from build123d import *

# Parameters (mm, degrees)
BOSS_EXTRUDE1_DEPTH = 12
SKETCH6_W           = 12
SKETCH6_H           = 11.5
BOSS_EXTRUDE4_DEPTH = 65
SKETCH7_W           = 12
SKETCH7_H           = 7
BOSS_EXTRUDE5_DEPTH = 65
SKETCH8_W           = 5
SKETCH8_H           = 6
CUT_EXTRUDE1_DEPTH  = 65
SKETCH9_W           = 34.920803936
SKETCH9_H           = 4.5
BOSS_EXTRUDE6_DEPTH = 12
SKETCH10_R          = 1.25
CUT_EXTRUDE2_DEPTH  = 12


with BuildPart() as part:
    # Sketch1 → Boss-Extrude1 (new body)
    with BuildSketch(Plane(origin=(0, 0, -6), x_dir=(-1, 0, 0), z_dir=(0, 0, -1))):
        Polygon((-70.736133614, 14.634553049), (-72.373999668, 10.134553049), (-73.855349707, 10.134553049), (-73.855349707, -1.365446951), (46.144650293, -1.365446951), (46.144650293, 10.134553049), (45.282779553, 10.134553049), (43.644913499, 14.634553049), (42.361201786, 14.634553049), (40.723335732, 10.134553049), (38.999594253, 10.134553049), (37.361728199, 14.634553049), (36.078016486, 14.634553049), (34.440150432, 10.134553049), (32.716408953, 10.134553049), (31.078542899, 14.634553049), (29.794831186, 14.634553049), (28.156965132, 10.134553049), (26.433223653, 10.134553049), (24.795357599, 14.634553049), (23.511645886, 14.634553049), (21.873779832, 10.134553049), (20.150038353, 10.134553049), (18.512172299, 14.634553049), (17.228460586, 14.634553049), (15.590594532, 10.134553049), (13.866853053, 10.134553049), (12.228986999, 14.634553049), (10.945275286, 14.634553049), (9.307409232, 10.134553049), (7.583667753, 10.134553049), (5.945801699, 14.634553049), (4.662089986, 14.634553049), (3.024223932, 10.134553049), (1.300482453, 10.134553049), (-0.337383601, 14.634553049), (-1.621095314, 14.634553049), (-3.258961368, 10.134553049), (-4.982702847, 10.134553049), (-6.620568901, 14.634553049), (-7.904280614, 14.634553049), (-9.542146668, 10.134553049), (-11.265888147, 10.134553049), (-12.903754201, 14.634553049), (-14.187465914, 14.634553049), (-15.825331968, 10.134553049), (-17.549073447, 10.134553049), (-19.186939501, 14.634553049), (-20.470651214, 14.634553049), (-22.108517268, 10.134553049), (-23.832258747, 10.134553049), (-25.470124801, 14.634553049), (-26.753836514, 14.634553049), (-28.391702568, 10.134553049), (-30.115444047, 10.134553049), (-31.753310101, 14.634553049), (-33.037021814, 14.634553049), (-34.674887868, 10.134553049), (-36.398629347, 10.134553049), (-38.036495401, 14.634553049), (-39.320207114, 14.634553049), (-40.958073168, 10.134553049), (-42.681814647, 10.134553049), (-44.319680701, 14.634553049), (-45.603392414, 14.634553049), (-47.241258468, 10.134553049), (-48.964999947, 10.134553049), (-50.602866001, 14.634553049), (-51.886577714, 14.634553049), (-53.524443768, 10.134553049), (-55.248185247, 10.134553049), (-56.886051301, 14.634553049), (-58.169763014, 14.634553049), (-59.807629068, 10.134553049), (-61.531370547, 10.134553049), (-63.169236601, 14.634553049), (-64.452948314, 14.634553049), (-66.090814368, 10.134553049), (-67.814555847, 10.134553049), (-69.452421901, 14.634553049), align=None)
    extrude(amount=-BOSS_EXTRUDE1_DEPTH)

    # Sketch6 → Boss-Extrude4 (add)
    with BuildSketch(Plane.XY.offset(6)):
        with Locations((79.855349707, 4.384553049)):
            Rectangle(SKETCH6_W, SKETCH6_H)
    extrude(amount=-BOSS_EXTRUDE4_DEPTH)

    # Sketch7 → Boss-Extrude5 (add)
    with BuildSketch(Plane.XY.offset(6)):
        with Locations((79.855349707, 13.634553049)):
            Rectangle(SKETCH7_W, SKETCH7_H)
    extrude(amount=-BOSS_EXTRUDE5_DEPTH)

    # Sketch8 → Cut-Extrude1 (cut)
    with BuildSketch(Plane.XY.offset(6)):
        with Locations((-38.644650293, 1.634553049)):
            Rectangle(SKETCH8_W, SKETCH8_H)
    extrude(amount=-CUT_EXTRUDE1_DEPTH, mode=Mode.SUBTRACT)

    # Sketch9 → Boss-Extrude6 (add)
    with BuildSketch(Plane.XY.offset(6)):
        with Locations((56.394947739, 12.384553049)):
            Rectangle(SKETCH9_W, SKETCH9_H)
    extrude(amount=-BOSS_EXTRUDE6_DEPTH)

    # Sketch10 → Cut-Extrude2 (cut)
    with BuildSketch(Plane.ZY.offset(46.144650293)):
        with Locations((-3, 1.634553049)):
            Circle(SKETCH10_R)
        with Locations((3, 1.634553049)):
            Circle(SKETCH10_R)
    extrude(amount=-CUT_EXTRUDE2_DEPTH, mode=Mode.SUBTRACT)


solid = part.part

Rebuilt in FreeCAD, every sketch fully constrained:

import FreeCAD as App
import Part
import Sketcher
Q = App.Units.Quantity


def add_polygon(sketch, points):
    """Adds a closed chain of lines whose ends are joined by coincident constraints."""
    first, n = sketch.GeometryCount, len(points)
    for a, b in zip(points, points[1:] + points[:1]):
        sketch.addGeometry(Part.LineSegment(App.Vector(*a, 0), App.Vector(*b, 0)), False)
    for i in range(n):
        sketch.addConstraint(Sketcher.Constraint("Coincident", first + i, 2, first + (i + 1) % n, 1))

doc = App.newDocument("Part")
body = doc.addObject("PartDesign::Body", "Body")

sketch1 = doc.addObject("Sketcher::SketchObject", "Sketch")
body.addObject(sketch1)
sketch1.AttachmentSupport = (doc.XY_Plane, [""])
sketch1.MapMode = "FlatFace"
sketch1.AttachmentOffset = App.Placement(App.Vector(0, 0, -6), App.Rotation())
add_polygon(sketch1, [(70.7, 14.6), (72.4, 10.1), (73.9, 10.1), (73.9, -1.4), (-46.1, -1.4), (-46.1, 10.1), (-45.3, 10.1), (-43.6, 14.6), (-42.4, 14.6), (-40.7, 10.1), (-39, 10.1), (-37.4, 14.6), (-36.1, 14.6), (-34.4, 10.1), (-32.7, 10.1), (-31.1, 14.6), (-29.8, 14.6), (-28.2, 10.1), (-26.4, 10.1), (-24.8, 14.6), (-23.5, 14.6), (-21.9, 10.1), (-20.2, 10.1), (-18.5, 14.6), (-17.2, 14.6), (-15.6, 10.1), (-13.9, 10.1), (-12.2, 14.6), (-10.9, 14.6), (-9.3, 10.1), (-7.6, 10.1), (-5.9, 14.6), (-4.7, 14.6), (-3, 10.1), (-1.3, 10.1), (0.3, 14.6), (1.6, 14.6), (3.3, 10.1), (5, 10.1), (6.6, 14.6), (7.9, 14.6), (9.5, 10.1), (11.3, 10.1), (12.9, 14.6), (14.2, 14.6), (15.8, 10.1), (17.5, 10.1), (19.2, 14.6), (20.5, 14.6), (22.1, 10.1), (23.8, 10.1), (25.5, 14.6), (26.8, 14.6), (28.4, 10.1), (30.1, 10.1), (31.8, 14.6), (33, 14.6), (34.7, 10.1), (36.4, 10.1), (38, 14.6), (39.3, 14.6), (41, 10.1), (42.7, 10.1), (44.3, 14.6), (45.6, 14.6), (47.2, 10.1), (49, 10.1), (50.6, 14.6), (51.9, 14.6), (53.5, 10.1), (55.2, 10.1), (56.9, 14.6), (58.2, 14.6), (59.8, 10.1), (61.5, 10.1), (63.2, 14.6), (64.5, 14.6), (66.1, 10.1), (67.8, 10.1), (69.5, 14.6)])
sketch1.addConstraint(Sketcher.Constraint("Horizontal", 1))
sketch1.addConstraint(Sketcher.Constraint("Vertical", 2))
sketch1.addConstraint(Sketcher.Constraint("Horizontal", 3))
sketch1.addConstraint(Sketcher.Constraint("Vertical", 4))
sketch1.addConstraint(Sketcher.Constraint("Horizontal", 5))
sketch1.addConstraint(Sketcher.Constraint("Horizontal", 7))
sketch1.addConstraint(Sketcher.Constraint("Horizontal", 9))
sketch1.addConstraint(Sketcher.Constraint("Horizontal", 11))
sketch1.addConstraint(Sketcher.Constraint("Horizontal", 13))
sketch1.addConstraint(Sketcher.Constraint("Horizontal", 15))
sketch1.addConstraint(Sketcher.Constraint("Horizontal", 17))
sketch1.addConstraint(Sketcher.Constraint("Horizontal", 19))
sketch1.addConstraint(Sketcher.Constraint("Horizontal", 21))
sketch1.addConstraint(Sketcher.Constraint("Horizontal", 23))
sketch1.addConstraint(Sketcher.Constraint("Horizontal", 25))
sketch1.addConstraint(Sketcher.Constraint("Horizontal", 27))
sketch1.addConstraint(Sketcher.Constraint("Horizontal", 29))
sketch1.addConstraint(Sketcher.Constraint("Horizontal", 31))
sketch1.addConstraint(Sketcher.Constraint("Horizontal", 33))
sketch1.addConstraint(Sketcher.Constraint("Horizontal", 35))
sketch1.addConstraint(Sketcher.Constraint("Horizontal", 37))
sketch1.addConstraint(Sketcher.Constraint("Horizontal", 39))
sketch1.addConstraint(Sketcher.Constraint("Horizontal", 41))
sketch1.addConstraint(Sketcher.Constraint("Horizontal", 43))
sketch1.addConstraint(Sketcher.Constraint("Horizontal", 45))
sketch1.addConstraint(Sketcher.Constraint("Horizontal", 47))
sketch1.addConstraint(Sketcher.Constraint("Horizontal", 49))
sketch1.addConstraint(Sketcher.Constraint("Horizontal", 51))
sketch1.addConstraint(Sketcher.Constraint("Horizontal", 53))
sketch1.addConstraint(Sketcher.Constraint("Horizontal", 55))
sketch1.addConstraint(Sketcher.Constraint("Horizontal", 57))
sketch1.addConstraint(Sketcher.Constraint("Horizontal", 59))
sketch1.addConstraint(Sketcher.Constraint("Horizontal", 61))
sketch1.addConstraint(Sketcher.Constraint("Horizontal", 63))
sketch1.addConstraint(Sketcher.Constraint("Horizontal", 65))
sketch1.addConstraint(Sketcher.Constraint("Horizontal", 67))
sketch1.addConstraint(Sketcher.Constraint("Horizontal", 69))
sketch1.addConstraint(Sketcher.Constraint("Horizontal", 71))
sketch1.addConstraint(Sketcher.Constraint("Horizontal", 73))
sketch1.addConstraint(Sketcher.Constraint("Horizontal", 75))
sketch1.addConstraint(Sketcher.Constraint("Horizontal", 77))
sketch1.addConstraint(Sketcher.Constraint("Horizontal", 79))
sketch1.addConstraint(Sketcher.Constraint("Parallel", 0, 8))
sketch1.addConstraint(Sketcher.Constraint("Parallel", 6, 10))
sketch1.addConstraint(Sketcher.Constraint("Parallel", 8, 12))
sketch1.addConstraint(Sketcher.Constraint("Parallel", 10, 14))
sketch1.addConstraint(Sketcher.Constraint("Parallel", 12, 16))
sketch1.addConstraint(Sketcher.Constraint("Parallel", 14, 18))
sketch1.addConstraint(Sketcher.Constraint("Parallel", 16, 20))
sketch1.addConstraint(Sketcher.Constraint("Parallel", 18, 22))
sketch1.addConstraint(Sketcher.Constraint("Parallel", 20, 24))
sketch1.addConstraint(Sketcher.Constraint("Parallel", 22, 26))
sketch1.addConstraint(Sketcher.Constraint("Parallel", 24, 28))
sketch1.addConstraint(Sketcher.Constraint("Parallel", 26, 30))
sketch1.addConstraint(Sketcher.Constraint("Parallel", 28, 32))
sketch1.addConstraint(Sketcher.Constraint("Parallel", 30, 34))
sketch1.addConstraint(Sketcher.Constraint("Parallel", 32, 36))
sketch1.addConstraint(Sketcher.Constraint("Parallel", 34, 38))
sketch1.addConstraint(Sketcher.Constraint("Parallel", 36, 40))
sketch1.addConstraint(Sketcher.Constraint("Parallel", 38, 42))
sketch1.addConstraint(Sketcher.Constraint("Parallel", 40, 44))
sketch1.addConstraint(Sketcher.Constraint("Parallel", 42, 46))
sketch1.addConstraint(Sketcher.Constraint("Parallel", 44, 48))
sketch1.addConstraint(Sketcher.Constraint("Parallel", 46, 50))
sketch1.addConstraint(Sketcher.Constraint("Parallel", 48, 52))
sketch1.addConstraint(Sketcher.Constraint("Parallel", 50, 54))
sketch1.addConstraint(Sketcher.Constraint("Parallel", 52, 56))
sketch1.addConstraint(Sketcher.Constraint("Parallel", 54, 58))
sketch1.addConstraint(Sketcher.Constraint("Parallel", 56, 60))
sketch1.addConstraint(Sketcher.Constraint("Parallel", 58, 62))
sketch1.addConstraint(Sketcher.Constraint("Parallel", 60, 64))
sketch1.addConstraint(Sketcher.Constraint("Parallel", 62, 66))
sketch1.addConstraint(Sketcher.Constraint("Parallel", 64, 68))
sketch1.addConstraint(Sketcher.Constraint("Parallel", 66, 70))
sketch1.addConstraint(Sketcher.Constraint("Parallel", 68, 72))
sketch1.addConstraint(Sketcher.Constraint("Parallel", 70, 74))
sketch1.addConstraint(Sketcher.Constraint("Parallel", 72, 76))
sketch1.addConstraint(Sketcher.Constraint("Parallel", 74, 78))
sketch1.addConstraint(Sketcher.Constraint("Horizontal", 1, 2, 4, 2))
sketch1.addConstraint(Sketcher.Constraint("Horizontal", 5, 2, 8, 2))
sketch1.addConstraint(Sketcher.Constraint("Horizontal", 7, 2, 10, 2))
sketch1.addConstraint(Sketcher.Constraint("Horizontal", 9, 2, 12, 2))
sketch1.addConstraint(Sketcher.Constraint("Horizontal", 11, 2, 14, 2))
sketch1.addConstraint(Sketcher.Constraint("Horizontal", 13, 2, 16, 2))
sketch1.addConstraint(Sketcher.Constraint("Horizontal", 15, 2, 18, 2))
sketch1.addConstraint(Sketcher.Constraint("Horizontal", 17, 2, 20, 2))
sketch1.addConstraint(Sketcher.Constraint("Horizontal", 19, 2, 22, 2))
sketch1.addConstraint(Sketcher.Constraint("Horizontal", 21, 2, 24, 2))
sketch1.addConstraint(Sketcher.Constraint("Horizontal", 23, 2, 26, 2))
sketch1.addConstraint(Sketcher.Constraint("Horizontal", 25, 2, 28, 2))
sketch1.addConstraint(Sketcher.Constraint("Horizontal", 27, 2, 30, 2))
sketch1.addConstraint(Sketcher.Constraint("Horizontal", 29, 2, 32, 2))
sketch1.addConstraint(Sketcher.Constraint("Horizontal", 31, 2, 34, 2))
sketch1.addConstraint(Sketcher.Constraint("Horizontal", 33, 2, 36, 2))
sketch1.addConstraint(Sketcher.Constraint("Horizontal", 35, 2, 38, 2))
sketch1.addConstraint(Sketcher.Constraint("Horizontal", 37, 2, 40, 2))
sketch1.addConstraint(Sketcher.Constraint("Horizontal", 39, 2, 42, 2))
sketch1.addConstraint(Sketcher.Constraint("Horizontal", 41, 2, 44, 2))
sketch1.addConstraint(Sketcher.Constraint("Horizontal", 43, 2, 46, 2))
sketch1.addConstraint(Sketcher.Constraint("Horizontal", 45, 2, 48, 2))
sketch1.addConstraint(Sketcher.Constraint("Horizontal", 47, 2, 50, 2))
sketch1.addConstraint(Sketcher.Constraint("Horizontal", 49, 2, 52, 2))
sketch1.addConstraint(Sketcher.Constraint("Horizontal", 51, 2, 54, 2))
sketch1.addConstraint(Sketcher.Constraint("Horizontal", 53, 2, 56, 2))
sketch1.addConstraint(Sketcher.Constraint("Horizontal", 55, 2, 58, 2))
sketch1.addConstraint(Sketcher.Constraint("Horizontal", 57, 2, 60, 2))
sketch1.addConstraint(Sketcher.Constraint("Horizontal", 59, 2, 62, 2))
sketch1.addConstraint(Sketcher.Constraint("Horizontal", 61, 2, 64, 2))
sketch1.addConstraint(Sketcher.Constraint("Horizontal", 63, 2, 66, 2))
sketch1.addConstraint(Sketcher.Constraint("Horizontal", 65, 2, 68, 2))
sketch1.addConstraint(Sketcher.Constraint("Horizontal", 67, 2, 70, 2))
sketch1.addConstraint(Sketcher.Constraint("Horizontal", 69, 2, 72, 2))
sketch1.addConstraint(Sketcher.Constraint("Horizontal", 71, 2, 74, 2))
sketch1.addConstraint(Sketcher.Constraint("Horizontal", 73, 2, 76, 2))
sketch1.addConstraint(Sketcher.Constraint("Horizontal", 75, 2, 78, 2))
sketch1.addConstraint(Sketcher.Constraint("Equal", 7, 11))
sketch1.addConstraint(Sketcher.Constraint("Equal", 9, 13))
sketch1.addConstraint(Sketcher.Constraint("Equal", 11, 15))
sketch1.addConstraint(Sketcher.Constraint("Equal", 13, 17))
sketch1.addConstraint(Sketcher.Constraint("Equal", 15, 19))
sketch1.addConstraint(Sketcher.Constraint("Equal", 17, 21))
sketch1.addConstraint(Sketcher.Constraint("Equal", 19, 23))
sketch1.addConstraint(Sketcher.Constraint("Equal", 21, 25))
sketch1.addConstraint(Sketcher.Constraint("Equal", 23, 27))
sketch1.addConstraint(Sketcher.Constraint("Equal", 25, 29))
sketch1.addConstraint(Sketcher.Constraint("Equal", 27, 31))
sketch1.addConstraint(Sketcher.Constraint("Equal", 29, 33))
sketch1.addConstraint(Sketcher.Constraint("Equal", 31, 35))
sketch1.addConstraint(Sketcher.Constraint("Equal", 33, 37))
sketch1.addConstraint(Sketcher.Constraint("Equal", 35, 39))
sketch1.addConstraint(Sketcher.Constraint("Equal", 37, 41))
sketch1.addConstraint(Sketcher.Constraint("Equal", 39, 43))
sketch1.addConstraint(Sketcher.Constraint("Equal", 41, 45))
sketch1.addConstraint(Sketcher.Constraint("Equal", 43, 47))
sketch1.addConstraint(Sketcher.Constraint("Equal", 45, 49))
sketch1.addConstraint(Sketcher.Constraint("Equal", 47, 51))
sketch1.addConstraint(Sketcher.Constraint("Equal", 49, 53))
sketch1.addConstraint(Sketcher.Constraint("Equal", 51, 55))
sketch1.addConstraint(Sketcher.Constraint("Equal", 53, 57))
sketch1.addConstraint(Sketcher.Constraint("Equal", 55, 59))
sketch1.addConstraint(Sketcher.Constraint("Equal", 57, 61))
sketch1.addConstraint(Sketcher.Constraint("Equal", 59, 63))
sketch1.addConstraint(Sketcher.Constraint("Equal", 61, 65))
sketch1.addConstraint(Sketcher.Constraint("Equal", 63, 67))
sketch1.addConstraint(Sketcher.Constraint("Equal", 65, 69))
sketch1.addConstraint(Sketcher.Constraint("Equal", 67, 71))
sketch1.addConstraint(Sketcher.Constraint("Equal", 69, 73))
sketch1.addConstraint(Sketcher.Constraint("Equal", 71, 75))
sketch1.addConstraint(Sketcher.Constraint("Equal", 73, 77))
sketch1.addConstraint(Sketcher.Constraint("Equal", 75, 79))
sketch1.addConstraint(Sketcher.Constraint("Equal", 0, 6))
sketch1.addConstraint(Sketcher.Constraint("DistanceX", 3, 2, 3, 1, Q("120 mm")))
sketch1.addConstraint(Sketcher.Constraint("Angle", 0, Q("-70 deg")))
sketch1.addConstraint(Sketcher.Constraint("DistanceY", 2, 2, 2, 1, Q("11.5 mm")))
sketch1.addConstraint(Sketcher.Constraint("DistanceX", -1, 1, 0, 2, Q("72.374 mm")))
sketch1.addConstraint(Sketcher.Constraint("DistanceX", -1, 1, 65, 2, Q("48.965 mm")))
sketch1.addConstraint(Sketcher.Constraint("Distance", 0, Q("4.7888 mm")))
sketch1.addConstraint(Sketcher.Constraint("DistanceX", 1, 1, 1, 2, Q("1.48135 mm")))
sketch1.addConstraint(Sketcher.Constraint("DistanceX", 5, 1, 5, 2, Q("0.861871 mm")))
sketch1.addConstraint(Sketcher.Constraint("DistanceY", -1, 1, 0, 2, Q("10.134553 mm")))
pad1 = doc.addObject("PartDesign::Pad", "Pad")
body.addObject(pad1)
pad1.Profile = sketch1
pad1.Length = 12

sketch2 = doc.addObject("Sketcher::SketchObject", "Sketch001")
body.addObject(sketch2)
sketch2.AttachmentSupport = (doc.XY_Plane, [""])
sketch2.MapMode = "FlatFace"
sketch2.AttachmentOffset = App.Placement(App.Vector(0, 0, 6), App.Rotation())
add_polygon(sketch2, [(74, 10), (74, -1), (86, -1), (86, 10)])
sketch2.addConstraint(Sketcher.Constraint("Vertical", 0))
sketch2.addConstraint(Sketcher.Constraint("Horizontal", 1))
sketch2.addConstraint(Sketcher.Constraint("Vertical", 2))
sketch2.addConstraint(Sketcher.Constraint("Horizontal", 3))
sketch2.addConstraint(Sketcher.Constraint("DistanceX", 1, 1, 1, 2, Q("12 mm")))
sketch2.addConstraint(Sketcher.Constraint("DistanceY", 0, 2, 0, 1, Q("11.5 mm")))
sketch2.addConstraint(Sketcher.Constraint("DistanceX", -1, 1, 0, 2, Q("73.85535 mm")))
sketch2.addConstraint(Sketcher.Constraint("DistanceY", 0, 2, -1, 1, Q("1.365447 mm")))
pad2 = doc.addObject("PartDesign::Pad", "Pad001")
body.addObject(pad2)
pad2.Profile = sketch2
pad2.Length = 65
pad2.Reversed = True

sketch3 = doc.addObject("Sketcher::SketchObject", "Sketch002")
body.addObject(sketch3)
sketch3.AttachmentSupport = (doc.XY_Plane, [""])
sketch3.MapMode = "FlatFace"
sketch3.AttachmentOffset = App.Placement(App.Vector(0, 0, 6), App.Rotation())
add_polygon(sketch3, [(74, 17), (74, 10), (86, 10), (86, 17)])
sketch3.addConstraint(Sketcher.Constraint("Vertical", 0))
sketch3.addConstraint(Sketcher.Constraint("Horizontal", 1))
sketch3.addConstraint(Sketcher.Constraint("Vertical", 2))
sketch3.addConstraint(Sketcher.Constraint("Horizontal", 3))
sketch3.addConstraint(Sketcher.Constraint("DistanceX", 1, 1, 1, 2, Q("12 mm")))
sketch3.addConstraint(Sketcher.Constraint("DistanceY", 0, 2, 0, 1, Q("7 mm")))
sketch3.addConstraint(Sketcher.Constraint("DistanceX", -1, 1, 0, 2, Q("73.85535 mm")))
sketch3.addConstraint(Sketcher.Constraint("DistanceY", -1, 1, 0, 2, Q("10.134553 mm")))
pad3 = doc.addObject("PartDesign::Pad", "Pad002")
body.addObject(pad3)
pad3.Profile = sketch3
pad3.Length = 65
pad3.Reversed = True

sketch4 = doc.addObject("Sketcher::SketchObject", "Sketch003")
body.addObject(sketch4)
sketch4.AttachmentSupport = (doc.XY_Plane, [""])
sketch4.MapMode = "FlatFace"
sketch4.AttachmentOffset = App.Placement(App.Vector(0, 0, 6), App.Rotation())
add_polygon(sketch4, [(-41, 5), (-41, -1), (-36, -1), (-36, 5)])
sketch4.addConstraint(Sketcher.Constraint("Vertical", 0))
sketch4.addConstraint(Sketcher.Constraint("Horizontal", 1))
sketch4.addConstraint(Sketcher.Constraint("Vertical", 2))
sketch4.addConstraint(Sketcher.Constraint("Horizontal", 3))
sketch4.addConstraint(Sketcher.Constraint("DistanceX", 1, 1, 1, 2, Q("5 mm")))
sketch4.addConstraint(Sketcher.Constraint("DistanceY", 0, 2, 0, 1, Q("6 mm")))
sketch4.addConstraint(Sketcher.Constraint("DistanceX", 0, 2, -1, 1, Q("41.14465 mm")))
sketch4.addConstraint(Sketcher.Constraint("DistanceY", 0, 2, -1, 1, Q("1.365447 mm")))
pocket1 = doc.addObject("PartDesign::Pocket", "Pocket")
body.addObject(pocket1)
pocket1.Profile = sketch4
pocket1.Length = 65

sketch5 = doc.addObject("Sketcher::SketchObject", "Sketch004")
body.addObject(sketch5)
sketch5.AttachmentSupport = (doc.XY_Plane, [""])
sketch5.MapMode = "FlatFace"
sketch5.AttachmentOffset = App.Placement(App.Vector(0, 0, 6), App.Rotation())
add_polygon(sketch5, [(38.9, 14.6), (38.9, 10.1), (73.9, 10.1), (73.9, 14.6)])
sketch5.addConstraint(Sketcher.Constraint("Vertical", 0))
sketch5.addConstraint(Sketcher.Constraint("Horizontal", 1))
sketch5.addConstraint(Sketcher.Constraint("Vertical", 2))
sketch5.addConstraint(Sketcher.Constraint("Horizontal", 3))
sketch5.addConstraint(Sketcher.Constraint("DistanceY", 0, 2, 0, 1, Q("4.5 mm")))
sketch5.addConstraint(Sketcher.Constraint("DistanceX", 1, 1, 1, 2, Q("34.920804 mm")))
sketch5.addConstraint(Sketcher.Constraint("DistanceX", -1, 1, 1, 2, Q("73.85535 mm")))
sketch5.addConstraint(Sketcher.Constraint("DistanceY", -1, 1, 0, 2, Q("10.134553 mm")))
pad4 = doc.addObject("PartDesign::Pad", "Pad003")
body.addObject(pad4)
pad4.Profile = sketch5
pad4.Length = 12
pad4.Reversed = True

sketch6 = doc.addObject("Sketcher::SketchObject", "Sketch005")
body.addObject(sketch6)
sketch6.AttachmentSupport = (doc.YZ_Plane, [""])
sketch6.MapMode = "FlatFace"
sketch6.AttachmentOffset = App.Placement(App.Vector(0, 0, -46.14465), App.Rotation())
sketch6.addGeometry(Part.Circle(App.Vector(1.6, -3, 0), App.Vector(0, 0, 1), 1.2), False)
sketch6.addGeometry(Part.Circle(App.Vector(1.6, 3, 0), App.Vector(0, 0, 1), 1.2), False)
sketch6.addConstraint(Sketcher.Constraint("Equal", 0, 1))
sketch6.addConstraint(Sketcher.Constraint("Symmetric", 0, 3, 1, 3, -1))
sketch6.addConstraint(Sketcher.Constraint("Diameter", 0, Q("2.5 mm")))
sketch6.addConstraint(Sketcher.Constraint("DistanceY", 0, 3, -1, 1, Q("3 mm")))
sketch6.addConstraint(Sketcher.Constraint("DistanceX", -1, 1, 0, 3, Q("1.634553 mm")))
pocket2 = doc.addObject("PartDesign::Pocket", "Pocket001")
body.addObject(pocket2)
pocket2.Profile = sketch6
pocket2.Length = 12
pocket2.Reversed = True

doc.recompute()
